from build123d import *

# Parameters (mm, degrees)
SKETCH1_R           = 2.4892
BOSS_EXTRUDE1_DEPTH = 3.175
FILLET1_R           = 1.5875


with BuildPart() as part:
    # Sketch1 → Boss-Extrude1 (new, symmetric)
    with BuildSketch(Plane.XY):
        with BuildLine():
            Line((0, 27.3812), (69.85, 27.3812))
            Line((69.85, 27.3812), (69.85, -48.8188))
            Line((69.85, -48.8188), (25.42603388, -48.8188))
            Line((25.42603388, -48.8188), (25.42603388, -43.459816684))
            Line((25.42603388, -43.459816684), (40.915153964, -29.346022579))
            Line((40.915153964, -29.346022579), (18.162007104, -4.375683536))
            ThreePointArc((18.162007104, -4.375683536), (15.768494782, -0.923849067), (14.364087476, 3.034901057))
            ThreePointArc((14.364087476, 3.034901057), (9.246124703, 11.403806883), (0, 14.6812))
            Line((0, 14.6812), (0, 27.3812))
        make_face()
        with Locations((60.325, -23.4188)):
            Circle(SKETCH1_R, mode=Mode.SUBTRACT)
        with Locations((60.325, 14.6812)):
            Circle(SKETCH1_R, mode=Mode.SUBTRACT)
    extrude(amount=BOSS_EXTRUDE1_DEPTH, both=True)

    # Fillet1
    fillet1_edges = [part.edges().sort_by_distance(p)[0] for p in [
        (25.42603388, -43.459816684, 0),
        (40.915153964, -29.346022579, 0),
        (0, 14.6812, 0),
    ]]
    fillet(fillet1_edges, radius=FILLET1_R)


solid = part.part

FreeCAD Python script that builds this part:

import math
import FreeCAD as App
import Part
import Sketcher

V = App.Vector
Q = App.Units.Quantity


def edges_at(feature, points):
    """Names of the edges that pass closest to the given points."""
    edges = feature.Shape.Edges
    near = lambda p: min(range(len(edges)), key=lambda i: edges[i].distToShape(Part.Vertex(*p))[0])
    return sorted({f"Edge{near(p) + 1}" for p in points})

doc = App.newDocument("Part")
body = doc.addObject("PartDesign::Body", "Body")

# Sketch on XY plane
sketch1 = body.newObject("Sketcher::SketchObject", "Sketch")
sketch1.AttachmentSupport = (doc.getObject("XY_Plane"), [""])
sketch1.MapMode = "FlatFace"
sketch1.addGeometry([
    Part.LineSegment(V(69.8, 27.4, 0), V(0, 27.4, 0)),  # 0
    Part.LineSegment(V(0, 27.4, 0), V(0, 14.7, 0)),  # 1
    Part.ArcOfCircle(Part.Circle(V(0, 0, 0), V(0, 0, 1), 14.7), math.radians(12), math.radians(90)),  # 2
    Part.ArcOfCircle(Part.Circle(V(29.9, 6.3, 0), V(0, 0, 1), 15.9), math.radians(-168), math.radians(-138)),  # 3
    Part.LineSegment(V(18.2, -4.4, 0), V(40.9, -29.3, 0)),  # 4
    Part.LineSegment(V(40.9, -29.3, 0), V(25.4, -43.5, 0)),  # 5
    Part.LineSegment(V(25.4, -43.5, 0), V(25.4, -48.8, 0)),  # 6
    Part.LineSegment(V(25.4, -48.8, 0), V(69.8, -48.8, 0)),  # 7
    Part.LineSegment(V(69.8, -48.8, 0), V(69.8, 27.4, 0)),  # 8
    Part.Circle(V(60.3, -23.4, 0), V(0, 0, 1), 2.5),  # 9
    Part.Circle(V(60.3, 14.7, 0), V(0, 0, 1), 2.5),  # 10
], False)
sketch1.addConstraint([
    Sketcher.Constraint("Coincident", 0, 2, 1, 1),
    Sketcher.Constraint("Coincident", 1, 2, 2, 2),
    Sketcher.Constraint("Tangent", 2, 1, 3, 1),
    Sketcher.Constraint("Tangent", 3, 2, 4, 1),
    Sketcher.Constraint("Coincident", 4, 2, 5, 1),
    Sketcher.Constraint("Coincident", 5, 2, 6, 1),
    Sketcher.Constraint("Coincident", 6, 2, 7, 1),
    Sketcher.Constraint("Coincident", 7, 2, 8, 1),
    Sketcher.Constraint("Coincident", 8, 2, 0, 1),
    Sketcher.Constraint("Horizontal", 0),
    Sketcher.Constraint("Vertical", 1),
    Sketcher.Constraint("Vertical", 6),
    Sketcher.Constraint("Horizontal", 7),
    Sketcher.Constraint("Vertical", 8),
    Sketcher.Constraint("Coincident", 2, 3, -1, 1),
    Sketcher.Constraint("Equal", 9, 10),
    Sketcher.Constraint("PointOnObject", 0, 2, -2),
    Sketcher.Constraint("Perpendicular", 4, 5),
    Sketcher.Constraint("Horizontal", 10, 3, 1, 2),
    Sketcher.Constraint("Vertical", 9, 3, 10, 3),
    Sketcher.Constraint("DistanceY", 8, 1, 8, 2, Q("3 in")),
    Sketcher.Constraint("Diameter", 9, Q("0.196 in")),
    Sketcher.Constraint("DistanceY", 1, 2, 1, 1, Q("0.5 in")),
    Sketcher.Constraint("Radius", 2, Q("0.578 in")),
    Sketcher.Constraint("Radius", 3, Q("0.625 in")),
    Sketcher.Constraint("DistanceY", 9, 3, 0, 2, Q("2 in")),
    Sketcher.Constraint("DistanceX", 0, 2, 0, 1, Q("2.75 in")),
    Sketcher.Constraint("Distance", 4, Q("1.33 in")),
    Sketcher.Constraint("Angle", 4, Q("-47.66 deg")),
    Sketcher.Constraint("Distance", 5, Q("0.825 in")),
    Sketcher.Constraint("DistanceX", -1, 1, 9, 3, Q("2.375 in")),
    Sketcher.Constraint("DistanceX", 2, 1, 3, 3, Q("0.6115001 in")),
])
pad1 = body.newObject("PartDesign::Pad", "Pad")
pad1.Profile = sketch1
pad1.Length = Q("0.25 in")
pad1.Midplane = True
doc.recompute()

fillet = body.newObject("PartDesign::Fillet", "Fillet")
fillet.Base = (pad1, edges_at(pad1, [(25.426, -43.46, 0), (40.915, -29.346, 0), (0, 14.681, 0)]))
fillet.Radius = Q("0.0625 in")

doc.recompute()
